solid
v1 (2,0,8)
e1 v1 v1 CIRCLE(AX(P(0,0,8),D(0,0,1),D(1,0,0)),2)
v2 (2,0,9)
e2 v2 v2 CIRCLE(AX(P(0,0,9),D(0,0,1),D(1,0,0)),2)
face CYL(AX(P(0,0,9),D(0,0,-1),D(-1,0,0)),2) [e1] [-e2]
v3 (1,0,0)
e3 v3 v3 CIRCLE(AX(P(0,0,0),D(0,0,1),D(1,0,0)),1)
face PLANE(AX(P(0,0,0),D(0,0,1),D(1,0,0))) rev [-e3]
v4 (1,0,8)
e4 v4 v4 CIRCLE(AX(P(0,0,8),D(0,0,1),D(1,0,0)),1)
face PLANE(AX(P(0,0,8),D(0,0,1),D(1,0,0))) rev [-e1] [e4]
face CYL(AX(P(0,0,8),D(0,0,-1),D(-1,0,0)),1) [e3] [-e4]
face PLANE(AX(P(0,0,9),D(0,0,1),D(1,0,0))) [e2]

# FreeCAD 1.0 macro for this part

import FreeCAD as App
import Part
import Sketcher
from FreeCAD import Vector
Q = App.Units.Quantity

doc = App.newDocument("Part")
body = doc.addObject("PartDesign::Body", "Body")

sketch1 = body.newObject("Sketcher::SketchObject", "Sketch")
sketch1.AttachmentSupport = (doc.getObject("XY_Plane"), [""])
sketch1.MapMode = "FlatFace"
sketch1.addGeometry(Part.Circle(Vector(0, 0, 0), Vector(0, 0, 1), 1), False)
sketch1.addConstraint([
    Sketcher.Constraint("Coincident", 0, 3, -1, 1),
    Sketcher.Constraint("Diameter", 0, Q("2 mm")),
])
pad1 = body.newObject("PartDesign::Pad", "Pad")
pad1.Profile = sketch1
pad1.Length = 8

sketch2 = body.newObject("Sketcher::SketchObject", "Sketch001")
sketch2.AttachmentSupport = (doc.getObject("XY_Plane"), [""])
sketch2.MapMode = "FlatFace"
sketch2.AttachmentOffset = App.Placement(Vector(0, 0, 8), App.Rotation())
sketch2.addGeometry(Part.Circle(Vector(0, 0, 0), Vector(0, 0, 1), 2), False)
sketch2.addConstraint([
    Sketcher.Constraint("Coincident", 0, 3, -1, 1),
    Sketcher.Constraint("Diameter", 0, Q("4 mm")),
])
pad2 = body.newObject("PartDesign::Pad", "Pad001")
pad2.Profile = sketch2
pad2.Length = 1

doc.recompute()
